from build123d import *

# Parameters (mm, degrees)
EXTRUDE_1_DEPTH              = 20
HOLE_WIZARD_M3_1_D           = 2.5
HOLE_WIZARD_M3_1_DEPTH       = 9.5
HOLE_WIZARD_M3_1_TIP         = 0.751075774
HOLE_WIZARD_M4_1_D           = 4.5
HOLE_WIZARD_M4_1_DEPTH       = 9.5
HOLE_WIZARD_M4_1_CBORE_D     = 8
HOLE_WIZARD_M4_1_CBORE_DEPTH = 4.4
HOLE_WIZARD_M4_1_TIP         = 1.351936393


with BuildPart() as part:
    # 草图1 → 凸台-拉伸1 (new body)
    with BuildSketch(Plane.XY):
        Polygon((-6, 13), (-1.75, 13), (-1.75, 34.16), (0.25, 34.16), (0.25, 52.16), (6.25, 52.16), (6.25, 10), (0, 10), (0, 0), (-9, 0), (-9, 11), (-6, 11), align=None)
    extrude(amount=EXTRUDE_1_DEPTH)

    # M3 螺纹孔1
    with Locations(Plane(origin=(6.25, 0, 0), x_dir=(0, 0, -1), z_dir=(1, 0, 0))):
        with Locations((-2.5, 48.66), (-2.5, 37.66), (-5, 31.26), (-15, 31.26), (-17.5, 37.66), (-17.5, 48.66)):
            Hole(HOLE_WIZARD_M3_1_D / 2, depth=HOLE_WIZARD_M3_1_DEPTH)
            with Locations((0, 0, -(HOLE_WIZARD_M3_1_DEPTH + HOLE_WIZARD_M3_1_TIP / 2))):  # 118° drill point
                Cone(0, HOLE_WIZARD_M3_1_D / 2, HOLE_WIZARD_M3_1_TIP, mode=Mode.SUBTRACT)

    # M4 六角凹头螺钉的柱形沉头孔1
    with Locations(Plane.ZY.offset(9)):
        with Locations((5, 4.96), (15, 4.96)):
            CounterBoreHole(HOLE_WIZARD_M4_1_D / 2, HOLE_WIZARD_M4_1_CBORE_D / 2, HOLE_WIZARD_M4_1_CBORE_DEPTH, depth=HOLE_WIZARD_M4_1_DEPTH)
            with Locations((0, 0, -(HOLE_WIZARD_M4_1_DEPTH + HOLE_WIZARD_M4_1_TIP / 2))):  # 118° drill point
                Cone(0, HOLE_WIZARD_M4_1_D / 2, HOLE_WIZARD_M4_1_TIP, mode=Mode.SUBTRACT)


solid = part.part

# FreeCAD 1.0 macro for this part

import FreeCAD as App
import Part
import Sketcher

V = App.Vector

doc = App.newDocument("Part")
body = doc.addObject("PartDesign::Body", "Body")

# Sketch on XY plane
sketch1 = body.newObject("Sketcher::SketchObject", "Sketch")
sketch1.AttachmentSupport = (doc.getObject("XY_Plane"), [""])
sketch1.MapMode = "FlatFace"
sketch1.addGeometry([
    Part.LineSegment(V(-1.8, 13, 0), V(-6, 13, 0)),  # 0
    Part.LineSegment(V(-6, 13, 0), V(-6, 11, 0)),  # 1
    Part.LineSegment(V(-6, 11, 0), V(-9, 11, 0)),  # 2
    Part.LineSegment(V(-9, 11, 0), V(-9, 0, 0)),  # 3
    Part.LineSegment(V(-9, 0, 0), V(0, 0, 0)),  # 4
    Part.LineSegment(V(0, 0, 0), V(0, 10, 0)),  # 5
    Part.LineSegment(V(0, 10, 0), V(6.2, 10, 0)),  # 6
    Part.LineSegment(V(6.2, 10, 0), V(6.2, 52.2, 0)),  # 7
    Part.LineSegment(V(6.2, 52.2, 0), V(0.2, 52.2, 0)),  # 8
    Part.LineSegment(V(0.2, 52.2, 0), V(0.2, 34.2, 0)),  # 9
    Part.LineSegment(V(0.2, 34.2, 0), V(-1.8, 34.2, 0)),  # 10
    Part.LineSegment(V(-1.8, 34.2, 0), V(-1.8, 13, 0)),  # 11
], False)
sketch1.addConstraint([
    Sketcher.Constraint("Coincident", 0, 2, 1, 1),
    Sketcher.Constraint("Coincident", 1, 2, 2, 1),
    Sketcher.Constraint("Coincident", 2, 2, 3, 1),
    Sketcher.Constraint("Coincident", 3, 2, 4, 1),
    Sketcher.Constraint("Coincident", 4, 2, 5, 1),
    Sketcher.Constraint("Coincident", 5, 2, 6, 1),
    Sketcher.Constraint("Coincident", 6, 2, 7, 1),
    Sketcher.Constraint("Coincident", 7, 2, 8, 1),
    Sketcher.Constraint("Coincident", 8, 2, 9, 1),
    Sketcher.Constraint("Coincident", 9, 2, 10, 1),
    Sketcher.Constraint("Coincident", 10, 2, 11, 1),
    Sketcher.Constraint("Coincident", 11, 2, 0, 1),
    Sketcher.Constraint("Horizontal", 0),
    Sketcher.Constraint("Vertical", 1),
    Sketcher.Constraint("Horizontal", 2),
    Sketcher.Constraint("Vertical", 3),
    Sketcher.Constraint("Horizontal", 4),
    Sketcher.Constraint("Vertical", 5),
    Sketcher.Constraint("Horizontal", 6),
    Sketcher.Constraint("Vertical", 7),
    Sketcher.Constraint("Horizontal", 8),
    Sketcher.Constraint("Vertical", 9),
    Sketcher.Constraint("Horizontal", 10),
    Sketcher.Constraint("Vertical", 11),
    Sketcher.Constraint("Coincident", 4, 2, -1, 1),
    Sketcher.Constraint("Equal", 10, 1),
    Sketcher.Constraint("DistanceX", 2, 2, 2, 1, 3.0),
    Sketcher.Constraint("DistanceX", 4, 1, 4, 2, 9.0),
    Sketcher.Constraint("DistanceX", 8, 2, 8, 1, 6.0),
    Sketcher.Constraint("DistanceX", 10, 2, 10, 1, 2.0),
    Sketcher.Constraint("DistanceY", 3, 2, 3, 1, 11.0),
    Sketcher.Constraint("DistanceY", 5, 1, 5, 2, 10.0),
    Sketcher.Constraint("DistanceY", 9, 2, 9, 1, 18.0),
    Sketcher.Constraint("DistanceX", 0, 2, 0, 1, 4.25),
    Sketcher.Constraint("DistanceY", 7, 1, 7, 2, 42.16),
])
pad1 = body.newObject("PartDesign::Pad", "Pad")
pad1.Profile = sketch1
pad1.Length = 20

# Sketch on YZ plane
sketch2 = body.newObject("Sketcher::SketchObject", "Sketch001")
sketch2.AttachmentSupport = (doc.getObject("YZ_Plane"), [""])
sketch2.MapMode = "FlatFace"
sketch2.AttachmentOffset = App.Placement(V(0, 0, 6.25), App.Rotation())
sketch2.addGeometry([
    Part.Circle(V(48.7, 2.5, 0), V(0, 0, 1), 1.2),  # 0
    Part.Circle(V(37.7, 2.5, 0), V(0, 0, 1), 1.2),  # 1
    Part.Circle(V(31.3, 5, 0), V(0, 0, 1), 1.2),  # 2
    Part.Circle(V(31.3, 15, 0), V(0, 0, 1), 1.2),  # 3
    Part.Circle(V(37.7, 17.5, 0), V(0, 0, 1), 1.2),  # 4
    Part.Circle(V(48.7, 17.5, 0), V(0, 0, 1), 1.2),  # 5
], False)
sketch2.addConstraint([
    Sketcher.Constraint("Equal", 0, 1),
    Sketcher.Constraint("Equal", 1, 2),
    Sketcher.Constraint("Equal", 2, 3),
    Sketcher.Constraint("Equal", 3, 4),
    Sketcher.Constraint("Equal", 4, 5),
    Sketcher.Constraint("Horizontal", 0, 3, 1, 3),
    Sketcher.Constraint("Horizontal", 4, 3, 5, 3),
    Sketcher.Constraint("Vertical", 2, 3, 3, 3),
    Sketcher.Constraint("Vertical", 1, 3, 4, 3),
    Sketcher.Constraint("Vertical", 0, 3, 5, 3),
    Sketcher.Constraint("Diameter", 0, 2.5),
    Sketcher.Constraint("DistanceY", -1, 1, 2, 3, 5.0),
    Sketcher.Constraint("DistanceY", -1, 1, 3, 3, 15.0),
    Sketcher.Constraint("DistanceX", 1, 3, 0, 3, 11.0),
    Sketcher.Constraint("DistanceY", 1, 3, 4, 3, 15.0),
    Sketcher.Constraint("DistanceY", -1, 1, 0, 3, 2.5),
    Sketcher.Constraint("DistanceX", 2, 3, 1, 3, 6.4),
    Sketcher.Constraint("DistanceX", -1, 1, 0, 3, 48.66),
])
doc.recompute()
hole = body.newObject("PartDesign::Hole", "Hole")
hole.Profile = sketch2
hole.ThreadType = "None"
hole.Diameter = 2.5
hole.DepthType = "Dimension"
hole.Depth = 9.5
hole.DrillPoint = "Angled"
hole.DrillPointAngle = 118

# Sketch on YZ plane
sketch3 = body.newObject("Sketcher::SketchObject", "Sketch002")
sketch3.AttachmentSupport = (doc.getObject("YZ_Plane"), [""])
sketch3.MapMode = "FlatFace"
sketch3.AttachmentOffset = App.Placement(V(0, 0, -9), App.Rotation())
sketch3.addGeometry([
    Part.Circle(V(5, 5, 0), V(0, 0, 1), 2.2),
    Part.Circle(V(5, 15, 0), V(0, 0, 1), 2.2),
], False)
sketch3.addConstraint([
    Sketcher.Constraint("Equal", 0, 1),
    Sketcher.Constraint("Vertical", 0, 3, 1, 3),
    Sketcher.Constraint("Diameter", 0, 4.5),
    Sketcher.Constraint("DistanceY", -1, 1, 0, 3, 5.0),
    Sketcher.Constraint("DistanceY", -1, 1, 1, 3, 15.0),
    Sketcher.Constraint("DistanceX", -1, 1, 0, 3, 4.96),
])
doc.recompute()
hole2 = body.newObject("PartDesign::Hole", "Hole001")
hole2.Profile = sketch3
hole2.ThreadType = "None"
hole2.Diameter = 4.5
hole2.DepthType = "Dimension"
hole2.Depth = 9.5
hole2.DrillPoint = "Angled"
hole2.DrillPointAngle = 118
hole2.HoleCutType = "Counterbore"
hole2.HoleCutDiameter = 8
hole2.HoleCutDepth = 4.4
hole2.Reversed = True

doc.recompute()
